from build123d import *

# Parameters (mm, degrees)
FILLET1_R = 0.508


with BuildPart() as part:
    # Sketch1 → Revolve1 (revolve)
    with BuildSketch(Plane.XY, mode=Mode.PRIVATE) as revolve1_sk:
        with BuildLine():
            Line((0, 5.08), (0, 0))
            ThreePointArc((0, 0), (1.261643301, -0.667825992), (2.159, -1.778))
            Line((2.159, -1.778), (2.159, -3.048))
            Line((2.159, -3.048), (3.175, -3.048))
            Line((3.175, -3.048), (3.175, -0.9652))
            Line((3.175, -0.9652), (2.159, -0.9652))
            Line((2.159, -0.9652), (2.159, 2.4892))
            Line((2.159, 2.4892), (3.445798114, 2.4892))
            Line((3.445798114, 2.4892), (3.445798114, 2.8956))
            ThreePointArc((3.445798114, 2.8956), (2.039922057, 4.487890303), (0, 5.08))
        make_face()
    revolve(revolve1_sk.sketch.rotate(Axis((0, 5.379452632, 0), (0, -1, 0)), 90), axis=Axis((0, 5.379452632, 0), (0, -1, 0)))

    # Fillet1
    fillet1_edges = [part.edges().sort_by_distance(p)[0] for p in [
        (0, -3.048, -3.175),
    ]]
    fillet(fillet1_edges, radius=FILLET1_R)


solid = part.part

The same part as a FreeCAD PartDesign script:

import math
import FreeCAD as App
import Part
import Sketcher

V = App.Vector
Q = App.Units.Quantity


def edges_at(feature, points):
    """Names of the edges that pass closest to the given points."""
    edges = feature.Shape.Edges
    near = lambda p: min(range(len(edges)), key=lambda i: edges[i].distToShape(Part.Vertex(*p))[0])
    return sorted({f"Edge{near(p) + 1}" for p in points})

doc = App.newDocument("Part")
params = doc.addObject("Spreadsheet::Sheet", "Params")
for row, (alias, value) in enumerate([
    ("sketch1_radius", "0.14 in"),
    ("sketch1_radius2", "0.15 in"),
    ("sketch1_height", "0.2 in"),
    ("sketch1_width", "0.04 in"),
    ("sketch1_height2", "0.05 in"),
    ("revolution_angle", "360 deg"),
    ("fillet_radius", "0.02 in"),
], start=1):
    params.set(f"A{row}", alias)
    params.set(f"B{row}", "=" + value)
    params.setAlias(f"B{row}", alias)

body = doc.addObject("PartDesign::Body", "Body")

# Sketch on XY plane
sketch1 = doc.addObject("Sketcher::SketchObject", "Sketch")
body.addObject(sketch1)
sketch1.AttachmentSupport = (doc.XY_Plane, [""])
sketch1.MapMode = "FlatFace"
sketch1.addGeometry(Part.LineSegment(V(0, 5.08, 0), V(0, 0, 0)), False)
sketch1.addGeometry(Part.ArcOfCircle(Part.Circle(V(-0.998932, -3.41281, 0), V(0, 0, 1), 3.556), math.radians(27.369868), math.radians(73.685212)), False)
sketch1.addGeometry(Part.LineSegment(V(2.159, -1.778, 0), V(2.159, -3.048, 0)), False)
sketch1.addGeometry(Part.LineSegment(V(2.159, -3.048, 0), V(3.175, -3.048, 0)), False)
sketch1.addGeometry(Part.LineSegment(V(3.175, -3.048, 0), V(3.175, -0.9652, 0)), False)
sketch1.addGeometry(Part.LineSegment(V(3.175, -0.9652, 0), V(2.159, -0.9652, 0)), False)
sketch1.addGeometry(Part.LineSegment(V(2.159, -0.9652, 0), V(2.159, 2.4892, 0)), False)
sketch1.addGeometry(Part.LineSegment(V(2.159, 2.4892, 0), V(3.445798, 2.4892, 0)), False)
sketch1.addGeometry(Part.LineSegment(V(3.445798, 2.4892, 0), V(3.445798, 2.8956, 0)), False)
sketch1.addGeometry(Part.ArcOfCircle(Part.Circle(V(0, 1.27, 0), V(0, 0, 1), 3.81), math.radians(25.256204), math.radians(90)), False)
sketch1.addConstraint(Sketcher.Constraint("Coincident", 0, 2, 1, 2))
sketch1.addConstraint(Sketcher.Constraint("Coincident", 1, 1, 2, 1))
sketch1.addConstraint(Sketcher.Constraint("Coincident", 2, 2, 3, 1))
sketch1.addConstraint(Sketcher.Constraint("Coincident", 3, 2, 4, 1))
sketch1.addConstraint(Sketcher.Constraint("Coincident", 4, 2, 5, 1))
sketch1.addConstraint(Sketcher.Constraint("Coincident", 5, 2, 6, 1))
sketch1.addConstraint(Sketcher.Constraint("Coincident", 6, 2, 7, 1))
sketch1.addConstraint(Sketcher.Constraint("Coincident", 7, 2, 8, 1))
sketch1.addConstraint(Sketcher.Constraint("Coincident", 8, 2, 9, 1))
sketch1.addConstraint(Sketcher.Constraint("Coincident", 9, 2, 0, 1))
sketch1.addConstraint(Sketcher.Constraint("Vertical", 0))
sketch1.addConstraint(Sketcher.Constraint("Vertical", 2))
sketch1.addConstraint(Sketcher.Constraint("Horizontal", 3))
sketch1.addConstraint(Sketcher.Constraint("Vertical", 4))
sketch1.addConstraint(Sketcher.Constraint("Horizontal", 5))
sketch1.addConstraint(Sketcher.Constraint("Vertical", 6))
sketch1.addConstraint(Sketcher.Constraint("Horizontal", 7))
sketch1.addConstraint(Sketcher.Constraint("Vertical", 8))
sketch1.addConstraint(Sketcher.Constraint("Coincident", 0, 2, -1, 1))
sketch1.addConstraint(Sketcher.Constraint("PointOnObject", 9, 3, -2))
sketch1.addConstraint(Sketcher.Constraint("Vertical", 2, 2, 5, 2))
sketch1.addConstraint(Sketcher.Constraint("Radius", 1, Q("0.14 in")))
sketch1.addConstraint(Sketcher.Constraint("Radius", 9, Q("0.15 in")))
sketch1.addConstraint(Sketcher.Constraint("DistanceY", 0, 2, 0, 1, Q("0.2 in")))
sketch1.addConstraint(Sketcher.Constraint("DistanceX", 3, 1, 3, 2, Q("0.04 in")))
sketch1.addConstraint(Sketcher.Constraint("DistanceY", 2, 2, 2, 1, Q("0.05 in")))
sketch1.addConstraint(Sketcher.Constraint("DistanceY", 4, 1, 4, 2, Q("0.082 in")))
sketch1.addConstraint(Sketcher.Constraint("DistanceY", 6, 1, 6, 2, Q("0.136 in")))
sketch1.addConstraint(Sketcher.Constraint("DistanceY", 8, 1, 8, 2, Q("0.016 in")))
sketch1.addConstraint(Sketcher.Constraint("DistanceY", 1, 1, -1, 1, Q("0.07 in")))
sketch1.addConstraint(Sketcher.Constraint("DistanceX", -1, 1, 1, 1, Q("0.085 in")))
sketch1.setExpression("Constraints[21]", "Params.sketch1_radius")
sketch1.setExpression("Constraints[22]", "Params.sketch1_radius2")
sketch1.setExpression("Constraints[23]", "Params.sketch1_height")
sketch1.setExpression("Constraints[24]", "Params.sketch1_width")
sketch1.setExpression("Constraints[25]", "Params.sketch1_height2")
revolution = doc.addObject("PartDesign::Revolution", "Revolution")
body.addObject(revolution)
revolution.Profile = sketch1
revolution.ReferenceAxis = (sketch1, ["V_Axis"])
revolution.setExpression("Angle", "Params.revolution_angle")
doc.recompute()

fillet = doc.addObject("PartDesign::Fillet", "Fillet")
body.addObject(fillet)
fillet.Base = (revolution, edges_at(revolution, [(0, -3.048, -3.175)]))
fillet.setExpression("Radius", "Params.fillet_radius")

doc.recompute()
